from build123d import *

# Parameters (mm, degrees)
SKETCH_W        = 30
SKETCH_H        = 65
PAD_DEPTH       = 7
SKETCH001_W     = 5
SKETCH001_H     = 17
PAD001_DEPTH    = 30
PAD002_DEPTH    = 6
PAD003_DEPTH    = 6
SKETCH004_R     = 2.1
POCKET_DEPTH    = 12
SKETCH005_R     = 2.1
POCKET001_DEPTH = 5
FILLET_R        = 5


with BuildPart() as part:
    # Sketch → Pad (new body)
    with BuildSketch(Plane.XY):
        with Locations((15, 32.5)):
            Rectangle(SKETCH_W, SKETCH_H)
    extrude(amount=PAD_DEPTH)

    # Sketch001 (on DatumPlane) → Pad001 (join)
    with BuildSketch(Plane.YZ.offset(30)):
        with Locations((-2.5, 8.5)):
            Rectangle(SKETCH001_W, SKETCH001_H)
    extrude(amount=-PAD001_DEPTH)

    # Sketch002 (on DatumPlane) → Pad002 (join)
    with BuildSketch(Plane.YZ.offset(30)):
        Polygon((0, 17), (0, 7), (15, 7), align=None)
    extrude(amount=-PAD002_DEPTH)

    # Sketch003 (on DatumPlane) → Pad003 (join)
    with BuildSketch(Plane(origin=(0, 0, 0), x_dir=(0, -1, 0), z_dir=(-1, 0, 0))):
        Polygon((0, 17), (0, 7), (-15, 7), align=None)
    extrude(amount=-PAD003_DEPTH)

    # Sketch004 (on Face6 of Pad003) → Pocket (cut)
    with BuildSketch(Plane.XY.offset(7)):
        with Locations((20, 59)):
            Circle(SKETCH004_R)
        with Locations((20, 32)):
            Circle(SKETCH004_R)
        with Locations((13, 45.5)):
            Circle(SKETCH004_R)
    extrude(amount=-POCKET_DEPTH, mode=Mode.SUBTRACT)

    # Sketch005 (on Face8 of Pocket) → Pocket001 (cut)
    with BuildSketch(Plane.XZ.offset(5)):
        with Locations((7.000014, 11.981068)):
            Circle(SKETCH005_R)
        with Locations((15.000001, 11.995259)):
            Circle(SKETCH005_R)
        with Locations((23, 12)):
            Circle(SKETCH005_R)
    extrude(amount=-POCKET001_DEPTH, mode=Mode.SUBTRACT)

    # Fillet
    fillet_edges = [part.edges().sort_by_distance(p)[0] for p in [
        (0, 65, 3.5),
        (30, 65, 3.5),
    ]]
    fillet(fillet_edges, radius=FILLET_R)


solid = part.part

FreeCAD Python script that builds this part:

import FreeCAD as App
import Part
import Sketcher
from FreeCAD import Vector


def edges_at(feature, points):
    """Names of the edges that pass closest to the given points."""
    edges = feature.Shape.Edges
    near = lambda p: min(range(len(edges)), key=lambda i: edges[i].distToShape(Part.Vertex(*p))[0])
    return sorted({f"Edge{near(p) + 1}" for p in points})


def add_polygon(sketch, points):
    """Adds a closed chain of lines whose ends are joined by coincident constraints."""
    first, n = sketch.GeometryCount, len(points)
    for a, b in zip(points, points[1:] + points[:1]):
        sketch.addGeometry(Part.LineSegment(App.Vector(*a, 0), App.Vector(*b, 0)), False)
    for i in range(n):
        sketch.addConstraint(Sketcher.Constraint("Coincident", first + i, 2, first + (i + 1) % n, 1))

doc = App.newDocument("Part")
body = doc.addObject("PartDesign::Body", "Body")

# Sketch on XY plane
sketch1 = doc.addObject("Sketcher::SketchObject", "Sketch")
body.addObject(sketch1)
sketch1.AttachmentSupport = (doc.XY_Plane, [""])
sketch1.MapMode = "FlatFace"
add_polygon(sketch1, [(0, 65), (0, 0), (30, 0), (30, 65)])  # lines 0-3
sketch1.addConstraint([
    Sketcher.Constraint("Vertical", 0),
    Sketcher.Constraint("Horizontal", 1),
    Sketcher.Constraint("Vertical", 2),
    Sketcher.Constraint("Horizontal", 3),
    Sketcher.Constraint("Coincident", 0, 2, -1, 1),
    Sketcher.Constraint("DistanceX", 1, 1, 1, 2, 30.0),
    Sketcher.Constraint("DistanceY", 0, 2, 0, 1, 65.0),
])
pad1 = doc.addObject("PartDesign::Pad", "Pad")
body.addObject(pad1)
pad1.Profile = sketch1
pad1.Length = 7

# Sketch on YZ plane
sketch2 = doc.addObject("Sketcher::SketchObject", "Sketch001")
body.addObject(sketch2)
sketch2.AttachmentSupport = (doc.YZ_Plane, [""])
sketch2.MapMode = "FlatFace"
sketch2.AttachmentOffset = App.Placement(Vector(0, 0, 30), App.Rotation())
add_polygon(sketch2, [(-5, 17), (-5, 0), (0, 0), (0, 17)])  # lines 0-3
sketch2.addConstraint([
    Sketcher.Constraint("Vertical", 0),
    Sketcher.Constraint("Horizontal", 1),
    Sketcher.Constraint("Vertical", 2),
    Sketcher.Constraint("Horizontal", 3),
    Sketcher.Constraint("Coincident", 1, 2, -1, 1),
    Sketcher.Constraint("DistanceX", 1, 1, 1, 2, 5.0),
    Sketcher.Constraint("DistanceY", 0, 2, 0, 1, 17.0),
])
pad2 = doc.addObject("PartDesign::Pad", "Pad001")
body.addObject(pad2)
pad2.Profile = sketch2
pad2.Length = 30
pad2.Reversed = True

# Sketch on YZ plane
sketch3 = doc.addObject("Sketcher::SketchObject", "Sketch002")
body.addObject(sketch3)
sketch3.AttachmentSupport = (doc.YZ_Plane, [""])
sketch3.MapMode = "FlatFace"
sketch3.AttachmentOffset = App.Placement(Vector(0, 0, 30), App.Rotation())
add_polygon(sketch3, [(0, 17), (0, 7), (15, 7)])  # lines 0-2
sketch3.addConstraint([
    Sketcher.Constraint("Vertical", 0),
    Sketcher.Constraint("Horizontal", 1),
    Sketcher.Constraint("PointOnObject", 0, 2, -2),
    Sketcher.Constraint("DistanceX", 1, 1, 1, 2, 15.0),
    Sketcher.Constraint("DistanceY", 0, 2, 0, 1, 10.0),
    Sketcher.Constraint("DistanceY", -1, 1, 0, 2, 7.0),
])
pad3 = doc.addObject("PartDesign::Pad", "Pad002")
body.addObject(pad3)
pad3.Profile = sketch3
pad3.Length = 6
pad3.Reversed = True

# Sketch on YZ plane
sketch4 = doc.addObject("Sketcher::SketchObject", "Sketch003")
body.addObject(sketch4)
sketch4.AttachmentSupport = (doc.YZ_Plane, [""])
sketch4.MapMode = "FlatFace"
add_polygon(sketch4, [(0, 7), (0, 17), (15, 7)])  # lines 0-2
sketch4.addConstraint([
    Sketcher.Constraint("Vertical", 0),
    Sketcher.Constraint("Horizontal", 2),
    Sketcher.Constraint("PointOnObject", 0, 2, -2),
    Sketcher.Constraint("DistanceX", 2, 2, 2, 1, 15.0),
    Sketcher.Constraint("DistanceY", 0, 1, 0, 2, 10.0),
    Sketcher.Constraint("DistanceY", -1, 1, 0, 2, 17.0),
])
pad4 = doc.addObject("PartDesign::Pad", "Pad003")
body.addObject(pad4)
pad4.Profile = sketch4
pad4.Length = 6

# Sketch on XY plane
sketch5 = doc.addObject("Sketcher::SketchObject", "Sketch004")
body.addObject(sketch5)
sketch5.AttachmentSupport = (doc.XY_Plane, [""])
sketch5.MapMode = "FlatFace"
sketch5.AttachmentOffset = App.Placement(Vector(0, 0, 7), App.Rotation())
sketch5.addGeometry([
    Part.Circle(Vector(20, 59, 0), Vector(0, 0, 1), 2.1),
    Part.Circle(Vector(20, 32, 0), Vector(0, 0, 1), 2.1),
    Part.Circle(Vector(13, 45.5, 0), Vector(0, 0, 1), 2.1),
], False)
sketch5.addConstraint([
    Sketcher.Constraint("Equal", 0, 1),
    Sketcher.Constraint("Equal", 1, 2),
    Sketcher.Constraint("Vertical", 0, 3, 1, 3),
    Sketcher.Constraint("Diameter", 0, 4.2),
    Sketcher.Constraint("DistanceX", -1, 1, 0, 3, 20.0),
    Sketcher.Constraint("DistanceY", -1, 1, 0, 3, 59.0),
    Sketcher.Constraint("DistanceY", -1, 1, 1, 3, 32.0),
    Sketcher.Constraint("DistanceX", -1, 1, 2, 3, 13.0),
    Sketcher.Constraint("DistanceY", -1, 1, 2, 3, 45.5),
])
pocket1 = doc.addObject("PartDesign::Pocket", "Pocket")
body.addObject(pocket1)
pocket1.Profile = sketch5
pocket1.Length = 12

# Sketch on XZ plane
sketch6 = doc.addObject("Sketcher::SketchObject", "Sketch005")
body.addObject(sketch6)
sketch6.AttachmentSupport = (doc.XZ_Plane, [""])
sketch6.MapMode = "FlatFace"
sketch6.AttachmentOffset = App.Placement(Vector(0, 0, 5), App.Rotation())
sketch6.addGeometry([
    Part.Circle(Vector(7.000014, 11.981068, 0), Vector(0, 0, 1), 2.1),
    Part.Circle(Vector(15.000001, 11.995259, 0), Vector(0, 0, 1), 2.1),
    Part.Circle(Vector(23, 12, 0), Vector(0, 0, 1), 2.1),
], False)
sketch6.addConstraint([
    Sketcher.Constraint("Equal", 0, 1),
    Sketcher.Constraint("Equal", 1, 2),
    Sketcher.Constraint("Diameter", 0, 4.2),
    Sketcher.Constraint("DistanceX", -1, 1, 1, 3, 15.000001),
    Sketcher.Constraint("DistanceX", -1, 1, 2, 3, 23.0),
    Sketcher.Constraint("DistanceY", -1, 1, 2, 3, 12.0),
    Sketcher.Constraint("DistanceY", -1, 1, 1, 3, 11.995259),
    Sketcher.Constraint("DistanceY", 0, 3, 1, 3, 0.014191),
    Sketcher.Constraint("DistanceX", -1, 1, 0, 3, 7.000014),
])
pocket2 = doc.addObject("PartDesign::Pocket", "Pocket001")
body.addObject(pocket2)
pocket2.Profile = sketch6
pocket2.Length = 5
doc.recompute()

fillet = doc.addObject("PartDesign::Fillet", "Fillet")
body.addObject(fillet)
fillet.Base = (pocket2, edges_at(pocket2, [(0, 65, 3.5), (30, 65, 3.5)]))
fillet.Radius = 5

doc.recompute()
